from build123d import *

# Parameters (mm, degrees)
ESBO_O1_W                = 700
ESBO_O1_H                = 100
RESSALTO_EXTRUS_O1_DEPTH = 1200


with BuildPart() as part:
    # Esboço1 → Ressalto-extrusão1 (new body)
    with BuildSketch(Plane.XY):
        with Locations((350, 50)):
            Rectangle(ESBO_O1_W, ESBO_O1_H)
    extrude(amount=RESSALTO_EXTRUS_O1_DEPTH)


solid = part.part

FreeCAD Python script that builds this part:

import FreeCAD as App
import Part
import Sketcher
from FreeCAD import Vector


def add_polygon(sketch, points):
    """Adds a closed chain of lines whose ends are joined by coincident constraints."""
    first, n = sketch.GeometryCount, len(points)
    for a, b in zip(points, points[1:] + points[:1]):
        sketch.addGeometry(Part.LineSegment(App.Vector(*a, 0), App.Vector(*b, 0)), False)
    for i in range(n):
        sketch.addConstraint(Sketcher.Constraint("Coincident", first + i, 2, first + (i + 1) % n, 1))

doc = App.newDocument("Part")
body = doc.addObject("PartDesign::Body", "Body")

sketch1 = body.newObject("Sketcher::SketchObject", "Sketch")
sketch1.AttachmentSupport = (doc.getObject("XY_Plane"), [""])
sketch1.MapMode = "FlatFace"
add_polygon(sketch1, [(0, 100), (0, 0), (700, 0), (700, 100)])
sketch1.addConstraint(Sketcher.Constraint("Vertical", 0))
sketch1.addConstraint(Sketcher.Constraint("Horizontal", 1))
sketch1.addConstraint(Sketcher.Constraint("Vertical", 2))
sketch1.addConstraint(Sketcher.Constraint("Horizontal", 3))
sketch1.addConstraint(Sketcher.Constraint("Coincident", 0, 2, -1, 1))
sketch1.addConstraint(Sketcher.Constraint("DistanceX", 1, 1, 1, 2, 700.0))
sketch1.addConstraint(Sketcher.Constraint("DistanceY", 0, 2, 0, 1, 100.0))
pad1 = body.newObject("PartDesign::Pad", "Pad")
pad1.Profile = sketch1
pad1.Length = 1200

doc.recompute()
